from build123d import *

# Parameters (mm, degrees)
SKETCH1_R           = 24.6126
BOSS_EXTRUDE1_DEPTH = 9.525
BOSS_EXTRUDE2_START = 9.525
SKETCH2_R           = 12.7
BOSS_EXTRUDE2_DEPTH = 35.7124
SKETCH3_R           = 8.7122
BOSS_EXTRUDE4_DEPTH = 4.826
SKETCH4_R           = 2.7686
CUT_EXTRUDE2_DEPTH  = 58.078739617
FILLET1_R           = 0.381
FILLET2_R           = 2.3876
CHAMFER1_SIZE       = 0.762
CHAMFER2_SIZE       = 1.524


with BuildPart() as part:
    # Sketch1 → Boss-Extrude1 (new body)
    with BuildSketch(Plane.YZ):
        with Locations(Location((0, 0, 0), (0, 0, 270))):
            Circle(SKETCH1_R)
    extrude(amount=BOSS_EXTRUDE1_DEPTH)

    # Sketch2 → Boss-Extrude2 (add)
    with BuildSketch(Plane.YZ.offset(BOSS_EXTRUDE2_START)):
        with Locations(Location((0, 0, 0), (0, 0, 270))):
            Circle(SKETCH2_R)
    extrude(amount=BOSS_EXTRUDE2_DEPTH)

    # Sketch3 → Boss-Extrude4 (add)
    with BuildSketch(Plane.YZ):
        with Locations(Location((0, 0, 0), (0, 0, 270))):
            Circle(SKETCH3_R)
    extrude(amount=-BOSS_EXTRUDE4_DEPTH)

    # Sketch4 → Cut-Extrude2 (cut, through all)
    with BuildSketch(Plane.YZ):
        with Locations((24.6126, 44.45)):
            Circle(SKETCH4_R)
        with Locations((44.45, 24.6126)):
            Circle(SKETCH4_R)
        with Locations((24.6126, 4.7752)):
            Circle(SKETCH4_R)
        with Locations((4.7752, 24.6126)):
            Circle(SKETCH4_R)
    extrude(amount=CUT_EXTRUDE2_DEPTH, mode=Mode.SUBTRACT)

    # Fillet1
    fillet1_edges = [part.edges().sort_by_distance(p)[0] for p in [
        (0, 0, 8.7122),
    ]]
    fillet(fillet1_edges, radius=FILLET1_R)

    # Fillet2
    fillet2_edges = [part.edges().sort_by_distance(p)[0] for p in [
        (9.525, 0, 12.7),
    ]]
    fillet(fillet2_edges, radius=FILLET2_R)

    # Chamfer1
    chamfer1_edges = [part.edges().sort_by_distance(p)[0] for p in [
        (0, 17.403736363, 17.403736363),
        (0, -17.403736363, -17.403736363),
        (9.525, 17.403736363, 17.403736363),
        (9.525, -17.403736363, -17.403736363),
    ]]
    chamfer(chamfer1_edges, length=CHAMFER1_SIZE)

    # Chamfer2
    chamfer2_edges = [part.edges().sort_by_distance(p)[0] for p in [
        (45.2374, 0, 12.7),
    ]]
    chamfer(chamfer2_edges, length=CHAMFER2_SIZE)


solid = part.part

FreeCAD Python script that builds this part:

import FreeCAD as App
import Part
import Sketcher
Q = App.Units.Quantity


def edges_at(feature, points):
    """Names of the edges that pass closest to the given points."""
    edges = feature.Shape.Edges
    near = lambda p: min(range(len(edges)), key=lambda i: edges[i].distToShape(Part.Vertex(*p))[0])
    return sorted({f"Edge{near(p) + 1}" for p in points})

doc = App.newDocument("Part")
body = doc.addObject("PartDesign::Body", "Body")

sketch1 = doc.addObject("Sketcher::SketchObject", "Sketch")
body.addObject(sketch1)
sketch1.AttachmentSupport = (doc.YZ_Plane, [""])
sketch1.MapMode = "FlatFace"
sketch1.addGeometry(Part.Circle(App.Vector(0, 0, 0), App.Vector(0, 0, 1), 25), False)
sketch1.addConstraint([
    Sketcher.Constraint("Coincident", 0, 3, -1, 1),
    Sketcher.Constraint("Diameter", 0, Q("1.938 in")),
])
pad1 = doc.addObject("PartDesign::Pad", "Pad")
body.addObject(pad1)
pad1.Profile = sketch1
pad1.Length = Q("0.375 in")

sketch2 = doc.addObject("Sketcher::SketchObject", "Sketch001")
body.addObject(sketch2)
sketch2.AttachmentSupport = (doc.YZ_Plane, [""])
sketch2.MapMode = "FlatFace"
sketch2.AttachmentOffset = App.Placement(App.Vector(0, 0, 0.375 * 25.4), App.Rotation())
sketch2.addGeometry(Part.Circle(App.Vector(0, 0, 0), App.Vector(0, 0, 1), 13), False)
sketch2.addConstraint([
    Sketcher.Constraint("Coincident", 0, 3, -1, 1),
    Sketcher.Constraint("Diameter", 0, Q("1 in")),
])
pad2 = doc.addObject("PartDesign::Pad", "Pad001")
body.addObject(pad2)
pad2.Profile = sketch2
pad2.Length = Q("1.406 in")

sketch3 = doc.addObject("Sketcher::SketchObject", "Sketch002")
body.addObject(sketch3)
sketch3.AttachmentSupport = (doc.YZ_Plane, [""])
sketch3.MapMode = "FlatFace"
sketch3.addGeometry(Part.Circle(App.Vector(0, 0, 0), App.Vector(0, 0, 1), 9), False)
sketch3.addConstraint([
    Sketcher.Constraint("Coincident", 0, 3, -1, 1),
    Sketcher.Constraint("Diameter", 0, Q("0.686 in")),
])
pad3 = doc.addObject("PartDesign::Pad", "Pad002")
body.addObject(pad3)
pad3.Profile = sketch3
pad3.Length = Q("0.19 in")
pad3.Reversed = True

sketch4 = doc.addObject("Sketcher::SketchObject", "Sketch003")
body.addObject(sketch4)
sketch4.AttachmentSupport = (doc.YZ_Plane, [""])
sketch4.MapMode = "FlatFace"
sketch4.addGeometry([
    Part.Circle(App.Vector(24.6, 44.5, 0), App.Vector(0, 0, 1), 2.8),
    Part.Circle(App.Vector(44.5, 24.6, 0), App.Vector(0, 0, 1), 2.8),
    Part.Circle(App.Vector(24.6, 4.8, 0), App.Vector(0, 0, 1), 2.8),
    Part.Circle(App.Vector(4.8, 24.6, 0), App.Vector(0, 0, 1), 2.8),
], False)
sketch4.addConstraint([
    Sketcher.Constraint("Equal", 0, 1),
    Sketcher.Constraint("Equal", 1, 2),
    Sketcher.Constraint("Equal", 2, 3),
    Sketcher.Constraint("Horizontal", 1, 3, 3, 3),
    Sketcher.Constraint("Vertical", 0, 3, 2, 3),
    Sketcher.Constraint("Diameter", 0, Q("0.218 in")),
    Sketcher.Constraint("DistanceY", -1, 1, 0, 3, Q("1.75 in")),
    Sketcher.Constraint("DistanceX", -1, 1, 1, 3, Q("1.75 in")),
    Sketcher.Constraint("DistanceX", -1, 1, 0, 3, Q("0.969 in")),
    Sketcher.Constraint("DistanceY", -1, 1, 1, 3, Q("0.969 in")),
    Sketcher.Constraint("DistanceY", -1, 1, 2, 3, Q("0.188 in")),
    Sketcher.Constraint("DistanceX", -1, 1, 3, 3, Q("0.188 in")),
])
pocket1 = doc.addObject("PartDesign::Pocket", "Pocket")
body.addObject(pocket1)
pocket1.Profile = sketch4
pocket1.Type = "ThroughAll"
pocket1.Reversed = True
doc.recompute()

fillet = doc.addObject("PartDesign::Fillet", "Fillet")
body.addObject(fillet)
fillet.Base = (pocket1, edges_at(pocket1, [(0, 0, 8.712)]))
fillet.Radius = Q("0.015 in")
doc.recompute()

fillet2 = doc.addObject("PartDesign::Fillet", "Fillet001")
body.addObject(fillet2)
fillet2.Base = (fillet, edges_at(fillet, [(9.525, 0, 12.7)]))
fillet2.Radius = Q("0.094 in")
doc.recompute()

chamfer = doc.addObject("PartDesign::Chamfer", "Chamfer")
body.addObject(chamfer)
chamfer.Base = (fillet2, edges_at(fillet2, [
    (0, 17.404, 17.404),
    (0, -17.404, -17.404),
    (9.525, 17.404, 17.404),
    (9.525, -17.404, -17.404),
]))
chamfer.Size = Q("0.03 in")
doc.recompute()

chamfer2 = doc.addObject("PartDesign::Chamfer", "Chamfer001")
body.addObject(chamfer2)
chamfer2.Base = (chamfer, edges_at(chamfer, [(45.237, 0, 12.7)]))
chamfer2.Size = Q("0.06 in")

doc.recompute()
